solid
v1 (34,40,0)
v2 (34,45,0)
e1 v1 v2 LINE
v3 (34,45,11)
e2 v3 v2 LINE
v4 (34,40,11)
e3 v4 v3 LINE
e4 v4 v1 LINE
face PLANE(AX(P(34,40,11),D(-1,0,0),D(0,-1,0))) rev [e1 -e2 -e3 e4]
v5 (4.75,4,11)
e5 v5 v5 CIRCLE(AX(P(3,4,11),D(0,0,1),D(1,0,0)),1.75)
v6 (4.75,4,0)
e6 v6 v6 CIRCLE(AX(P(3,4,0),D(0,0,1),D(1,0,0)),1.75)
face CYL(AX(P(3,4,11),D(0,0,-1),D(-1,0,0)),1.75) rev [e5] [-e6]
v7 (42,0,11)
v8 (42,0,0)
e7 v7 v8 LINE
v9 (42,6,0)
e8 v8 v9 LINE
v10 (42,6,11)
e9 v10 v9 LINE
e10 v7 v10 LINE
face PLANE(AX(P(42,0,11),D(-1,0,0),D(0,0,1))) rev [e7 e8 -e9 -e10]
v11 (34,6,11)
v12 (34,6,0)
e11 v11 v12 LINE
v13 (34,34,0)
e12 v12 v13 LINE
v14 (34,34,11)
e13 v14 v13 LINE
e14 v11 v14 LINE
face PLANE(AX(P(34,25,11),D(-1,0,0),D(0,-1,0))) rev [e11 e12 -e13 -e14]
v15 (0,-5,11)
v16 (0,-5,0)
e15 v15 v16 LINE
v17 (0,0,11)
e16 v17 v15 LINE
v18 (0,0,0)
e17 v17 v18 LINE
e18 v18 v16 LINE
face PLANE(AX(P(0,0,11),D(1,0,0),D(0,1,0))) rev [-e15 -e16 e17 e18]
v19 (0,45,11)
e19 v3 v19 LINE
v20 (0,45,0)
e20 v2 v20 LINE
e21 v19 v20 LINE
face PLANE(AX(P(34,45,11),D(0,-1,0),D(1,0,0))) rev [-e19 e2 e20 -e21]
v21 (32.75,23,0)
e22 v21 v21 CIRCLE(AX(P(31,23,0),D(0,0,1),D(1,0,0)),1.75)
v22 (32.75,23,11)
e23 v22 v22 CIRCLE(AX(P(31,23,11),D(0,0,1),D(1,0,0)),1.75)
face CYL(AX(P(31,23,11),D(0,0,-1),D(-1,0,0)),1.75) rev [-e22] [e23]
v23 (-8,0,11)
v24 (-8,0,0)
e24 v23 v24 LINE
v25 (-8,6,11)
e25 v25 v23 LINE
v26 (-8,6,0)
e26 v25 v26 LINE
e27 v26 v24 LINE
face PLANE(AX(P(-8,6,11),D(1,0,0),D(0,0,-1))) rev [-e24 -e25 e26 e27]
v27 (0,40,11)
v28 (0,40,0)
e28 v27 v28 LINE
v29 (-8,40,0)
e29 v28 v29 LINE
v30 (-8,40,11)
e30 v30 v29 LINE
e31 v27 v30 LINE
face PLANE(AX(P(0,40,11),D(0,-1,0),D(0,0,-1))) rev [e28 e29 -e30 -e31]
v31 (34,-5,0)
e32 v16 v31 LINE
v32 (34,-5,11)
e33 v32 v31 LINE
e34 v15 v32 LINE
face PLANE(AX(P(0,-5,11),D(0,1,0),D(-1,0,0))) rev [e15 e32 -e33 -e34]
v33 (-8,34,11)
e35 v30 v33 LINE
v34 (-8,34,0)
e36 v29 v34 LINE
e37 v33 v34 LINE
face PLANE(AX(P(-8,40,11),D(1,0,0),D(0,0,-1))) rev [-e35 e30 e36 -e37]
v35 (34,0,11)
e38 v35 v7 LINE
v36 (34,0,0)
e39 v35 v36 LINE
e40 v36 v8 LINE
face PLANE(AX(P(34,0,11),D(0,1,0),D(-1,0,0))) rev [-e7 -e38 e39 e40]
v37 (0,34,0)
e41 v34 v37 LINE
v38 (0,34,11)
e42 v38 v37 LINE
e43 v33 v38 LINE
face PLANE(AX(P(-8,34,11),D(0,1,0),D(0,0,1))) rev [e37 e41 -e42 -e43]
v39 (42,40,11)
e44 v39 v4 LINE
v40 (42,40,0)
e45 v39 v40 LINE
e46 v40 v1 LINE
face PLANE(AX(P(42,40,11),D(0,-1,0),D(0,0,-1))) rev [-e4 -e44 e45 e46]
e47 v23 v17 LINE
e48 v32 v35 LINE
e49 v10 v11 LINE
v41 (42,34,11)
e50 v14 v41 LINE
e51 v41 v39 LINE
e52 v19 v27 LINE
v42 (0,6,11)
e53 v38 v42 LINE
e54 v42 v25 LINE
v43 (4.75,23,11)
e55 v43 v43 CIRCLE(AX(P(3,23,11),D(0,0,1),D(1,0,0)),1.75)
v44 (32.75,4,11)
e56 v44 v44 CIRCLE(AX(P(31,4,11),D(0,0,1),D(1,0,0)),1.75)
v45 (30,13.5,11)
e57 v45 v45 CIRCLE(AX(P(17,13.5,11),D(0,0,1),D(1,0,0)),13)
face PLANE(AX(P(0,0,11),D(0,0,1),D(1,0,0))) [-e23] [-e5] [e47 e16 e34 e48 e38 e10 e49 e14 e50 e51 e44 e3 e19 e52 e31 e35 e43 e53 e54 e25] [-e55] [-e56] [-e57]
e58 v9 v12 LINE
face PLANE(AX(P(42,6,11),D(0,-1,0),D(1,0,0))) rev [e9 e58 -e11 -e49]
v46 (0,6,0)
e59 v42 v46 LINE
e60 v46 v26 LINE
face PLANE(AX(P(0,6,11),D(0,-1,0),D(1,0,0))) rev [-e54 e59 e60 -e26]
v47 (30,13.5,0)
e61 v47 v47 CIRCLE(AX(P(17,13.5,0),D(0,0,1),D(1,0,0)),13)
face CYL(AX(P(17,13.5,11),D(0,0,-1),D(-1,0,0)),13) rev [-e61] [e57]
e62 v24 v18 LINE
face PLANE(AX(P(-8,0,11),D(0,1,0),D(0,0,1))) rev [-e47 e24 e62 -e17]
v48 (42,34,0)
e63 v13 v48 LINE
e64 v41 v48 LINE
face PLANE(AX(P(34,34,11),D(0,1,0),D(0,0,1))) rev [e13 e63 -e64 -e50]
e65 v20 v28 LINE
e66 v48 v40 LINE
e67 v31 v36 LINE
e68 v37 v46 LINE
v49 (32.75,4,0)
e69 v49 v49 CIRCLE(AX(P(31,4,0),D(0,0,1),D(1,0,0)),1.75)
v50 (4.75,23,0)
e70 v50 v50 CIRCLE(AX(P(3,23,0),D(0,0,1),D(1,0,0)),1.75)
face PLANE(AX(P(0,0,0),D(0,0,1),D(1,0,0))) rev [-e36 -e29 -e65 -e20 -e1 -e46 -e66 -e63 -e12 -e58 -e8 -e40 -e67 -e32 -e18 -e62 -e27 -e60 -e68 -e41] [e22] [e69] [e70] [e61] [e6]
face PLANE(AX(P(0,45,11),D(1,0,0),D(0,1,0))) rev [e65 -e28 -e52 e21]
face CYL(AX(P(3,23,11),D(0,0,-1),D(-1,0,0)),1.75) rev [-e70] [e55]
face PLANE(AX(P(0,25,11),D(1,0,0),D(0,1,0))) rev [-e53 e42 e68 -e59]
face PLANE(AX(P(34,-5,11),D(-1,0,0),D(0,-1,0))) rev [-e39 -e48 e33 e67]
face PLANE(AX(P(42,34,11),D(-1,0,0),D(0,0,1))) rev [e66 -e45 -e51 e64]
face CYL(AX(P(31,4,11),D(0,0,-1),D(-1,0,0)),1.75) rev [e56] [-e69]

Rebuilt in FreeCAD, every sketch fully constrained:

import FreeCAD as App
import Part
import Sketcher

V = App.Vector
Q = App.Units.Quantity


def add_polygon(sketch, points):
    """Adds a closed chain of lines whose ends are joined by coincident constraints."""
    first, n = sketch.GeometryCount, len(points)
    for a, b in zip(points, points[1:] + points[:1]):
        sketch.addGeometry(Part.LineSegment(App.Vector(*a, 0), App.Vector(*b, 0)), False)
    for i in range(n):
        sketch.addConstraint(Sketcher.Constraint("Coincident", first + i, 2, first + (i + 1) % n, 1))

doc = App.newDocument("Part")
body = doc.addObject("PartDesign::Body", "Body")

# Sketch on XY plane
sketch1 = doc.addObject("Sketcher::SketchObject", "Sketch")
body.addObject(sketch1)
sketch1.AttachmentSupport = (doc.XY_Plane, [""])
sketch1.MapMode = "FlatFace"
add_polygon(sketch1, [(0, 6), (-8, 6), (-8, 0), (0, 0), (0, -5), (34, -5), (34, 0), (42, 0), (42, 6), (34, 6), (34, 34), (42, 34), (42, 40), (34, 40), (34, 45), (0, 45), (0, 40), (-8, 40), (-8, 34), (0, 34)])  # lines 0-19
sketch1.addGeometry(Part.Circle(V(3, 4, 0), V(0, 0, 1), 1.75), False)  # 20
sketch1.addGeometry(Part.Circle(V(31, 4, 0), V(0, 0, 1), 1.75), False)  # 21
sketch1.addGeometry(Part.Circle(V(3, 23, 0), V(0, 0, 1), 1.75), False)  # 22
sketch1.addGeometry(Part.Circle(V(17, 13.5, 0), V(0, 0, 1), 13), False)  # 23
sketch1.addGeometry(Part.Circle(V(31, 23, 0), V(0, 0, 1), 1.75), False)  # 24
sketch1.addConstraint([
    Sketcher.Constraint("Horizontal", 0),
    Sketcher.Constraint("Vertical", 1),
    Sketcher.Constraint("Horizontal", 2),
    Sketcher.Constraint("Vertical", 3),
    Sketcher.Constraint("Horizontal", 4),
    Sketcher.Constraint("Vertical", 5),
    Sketcher.Constraint("Horizontal", 6),
    Sketcher.Constraint("Vertical", 7),
    Sketcher.Constraint("Horizontal", 8),
    Sketcher.Constraint("Vertical", 9),
    Sketcher.Constraint("Horizontal", 10),
    Sketcher.Constraint("Vertical", 11),
    Sketcher.Constraint("Horizontal", 12),
    Sketcher.Constraint("Vertical", 13),
    Sketcher.Constraint("Horizontal", 14),
    Sketcher.Constraint("Vertical", 15),
    Sketcher.Constraint("Horizontal", 16),
    Sketcher.Constraint("Vertical", 17),
    Sketcher.Constraint("Horizontal", 18),
    Sketcher.Constraint("Vertical", 19),
    Sketcher.Constraint("Coincident", 2, 2, -1, 1),
    Sketcher.Constraint("Equal", 20, 21),
    Sketcher.Constraint("Equal", 21, 22),
    Sketcher.Constraint("Equal", 22, 24),
    Sketcher.Constraint("PointOnObject", 5, 2, -1),
    Sketcher.Constraint("PointOnObject", 14, 2, -2),
    Sketcher.Constraint("PointOnObject", 18, 2, -2),
    Sketcher.Constraint("Horizontal", 20, 3, 21, 3),
    Sketcher.Constraint("Horizontal", 22, 3, 24, 3),
    Sketcher.Constraint("Horizontal", 0, 2, 7, 2),
    Sketcher.Constraint("Horizontal", 12, 2, 15, 2),
    Sketcher.Constraint("Horizontal", 10, 2, 17, 2),
    Sketcher.Constraint("Vertical", 20, 3, 22, 3),
    Sketcher.Constraint("Vertical", 21, 3, 24, 3),
    Sketcher.Constraint("Vertical", 5, 2, 8, 2),
    Sketcher.Constraint("Vertical", 7, 2, 10, 2),
    Sketcher.Constraint("Vertical", 9, 2, 12, 2),
    Sketcher.Constraint("Vertical", 1, 2, 16, 2),
    Sketcher.Constraint("Equal", 2, 6),
    Sketcher.Constraint("Equal", 7, 11),
    Sketcher.Constraint("Equal", 5, 13),
    Sketcher.Constraint("Diameter", 23, Q("26 mm")),
    Sketcher.Constraint("Diameter", 20, Q("3.5 mm")),
    Sketcher.Constraint("DistanceX", 0, 2, 0, 1, Q("8 mm")),
    Sketcher.Constraint("DistanceX", 4, 1, 4, 2, Q("34 mm")),
    Sketcher.Constraint("DistanceY", 1, 2, 1, 1, Q("6 mm")),
    Sketcher.Constraint("DistanceY", 3, 2, 3, 1, Q("5 mm")),
    Sketcher.Constraint("DistanceY", 9, 1, 9, 2, Q("28 mm")),
    Sketcher.Constraint("DistanceX", -1, 1, 20, 3, Q("3 mm")),
    Sketcher.Constraint("DistanceY", -1, 1, 20, 3, Q("4 mm")),
    Sketcher.Constraint("DistanceX", -1, 1, 21, 3, Q("31 mm")),
    Sketcher.Constraint("DistanceY", -1, 1, 22, 3, Q("23 mm")),
    Sketcher.Constraint("DistanceX", -1, 1, 23, 3, Q("17 mm")),
    Sketcher.Constraint("DistanceY", -1, 1, 23, 3, Q("13.5 mm")),
])
pad1 = doc.addObject("PartDesign::Pad", "Pad")
body.addObject(pad1)
pad1.Profile = sketch1
pad1.Length = 11

doc.recompute()
